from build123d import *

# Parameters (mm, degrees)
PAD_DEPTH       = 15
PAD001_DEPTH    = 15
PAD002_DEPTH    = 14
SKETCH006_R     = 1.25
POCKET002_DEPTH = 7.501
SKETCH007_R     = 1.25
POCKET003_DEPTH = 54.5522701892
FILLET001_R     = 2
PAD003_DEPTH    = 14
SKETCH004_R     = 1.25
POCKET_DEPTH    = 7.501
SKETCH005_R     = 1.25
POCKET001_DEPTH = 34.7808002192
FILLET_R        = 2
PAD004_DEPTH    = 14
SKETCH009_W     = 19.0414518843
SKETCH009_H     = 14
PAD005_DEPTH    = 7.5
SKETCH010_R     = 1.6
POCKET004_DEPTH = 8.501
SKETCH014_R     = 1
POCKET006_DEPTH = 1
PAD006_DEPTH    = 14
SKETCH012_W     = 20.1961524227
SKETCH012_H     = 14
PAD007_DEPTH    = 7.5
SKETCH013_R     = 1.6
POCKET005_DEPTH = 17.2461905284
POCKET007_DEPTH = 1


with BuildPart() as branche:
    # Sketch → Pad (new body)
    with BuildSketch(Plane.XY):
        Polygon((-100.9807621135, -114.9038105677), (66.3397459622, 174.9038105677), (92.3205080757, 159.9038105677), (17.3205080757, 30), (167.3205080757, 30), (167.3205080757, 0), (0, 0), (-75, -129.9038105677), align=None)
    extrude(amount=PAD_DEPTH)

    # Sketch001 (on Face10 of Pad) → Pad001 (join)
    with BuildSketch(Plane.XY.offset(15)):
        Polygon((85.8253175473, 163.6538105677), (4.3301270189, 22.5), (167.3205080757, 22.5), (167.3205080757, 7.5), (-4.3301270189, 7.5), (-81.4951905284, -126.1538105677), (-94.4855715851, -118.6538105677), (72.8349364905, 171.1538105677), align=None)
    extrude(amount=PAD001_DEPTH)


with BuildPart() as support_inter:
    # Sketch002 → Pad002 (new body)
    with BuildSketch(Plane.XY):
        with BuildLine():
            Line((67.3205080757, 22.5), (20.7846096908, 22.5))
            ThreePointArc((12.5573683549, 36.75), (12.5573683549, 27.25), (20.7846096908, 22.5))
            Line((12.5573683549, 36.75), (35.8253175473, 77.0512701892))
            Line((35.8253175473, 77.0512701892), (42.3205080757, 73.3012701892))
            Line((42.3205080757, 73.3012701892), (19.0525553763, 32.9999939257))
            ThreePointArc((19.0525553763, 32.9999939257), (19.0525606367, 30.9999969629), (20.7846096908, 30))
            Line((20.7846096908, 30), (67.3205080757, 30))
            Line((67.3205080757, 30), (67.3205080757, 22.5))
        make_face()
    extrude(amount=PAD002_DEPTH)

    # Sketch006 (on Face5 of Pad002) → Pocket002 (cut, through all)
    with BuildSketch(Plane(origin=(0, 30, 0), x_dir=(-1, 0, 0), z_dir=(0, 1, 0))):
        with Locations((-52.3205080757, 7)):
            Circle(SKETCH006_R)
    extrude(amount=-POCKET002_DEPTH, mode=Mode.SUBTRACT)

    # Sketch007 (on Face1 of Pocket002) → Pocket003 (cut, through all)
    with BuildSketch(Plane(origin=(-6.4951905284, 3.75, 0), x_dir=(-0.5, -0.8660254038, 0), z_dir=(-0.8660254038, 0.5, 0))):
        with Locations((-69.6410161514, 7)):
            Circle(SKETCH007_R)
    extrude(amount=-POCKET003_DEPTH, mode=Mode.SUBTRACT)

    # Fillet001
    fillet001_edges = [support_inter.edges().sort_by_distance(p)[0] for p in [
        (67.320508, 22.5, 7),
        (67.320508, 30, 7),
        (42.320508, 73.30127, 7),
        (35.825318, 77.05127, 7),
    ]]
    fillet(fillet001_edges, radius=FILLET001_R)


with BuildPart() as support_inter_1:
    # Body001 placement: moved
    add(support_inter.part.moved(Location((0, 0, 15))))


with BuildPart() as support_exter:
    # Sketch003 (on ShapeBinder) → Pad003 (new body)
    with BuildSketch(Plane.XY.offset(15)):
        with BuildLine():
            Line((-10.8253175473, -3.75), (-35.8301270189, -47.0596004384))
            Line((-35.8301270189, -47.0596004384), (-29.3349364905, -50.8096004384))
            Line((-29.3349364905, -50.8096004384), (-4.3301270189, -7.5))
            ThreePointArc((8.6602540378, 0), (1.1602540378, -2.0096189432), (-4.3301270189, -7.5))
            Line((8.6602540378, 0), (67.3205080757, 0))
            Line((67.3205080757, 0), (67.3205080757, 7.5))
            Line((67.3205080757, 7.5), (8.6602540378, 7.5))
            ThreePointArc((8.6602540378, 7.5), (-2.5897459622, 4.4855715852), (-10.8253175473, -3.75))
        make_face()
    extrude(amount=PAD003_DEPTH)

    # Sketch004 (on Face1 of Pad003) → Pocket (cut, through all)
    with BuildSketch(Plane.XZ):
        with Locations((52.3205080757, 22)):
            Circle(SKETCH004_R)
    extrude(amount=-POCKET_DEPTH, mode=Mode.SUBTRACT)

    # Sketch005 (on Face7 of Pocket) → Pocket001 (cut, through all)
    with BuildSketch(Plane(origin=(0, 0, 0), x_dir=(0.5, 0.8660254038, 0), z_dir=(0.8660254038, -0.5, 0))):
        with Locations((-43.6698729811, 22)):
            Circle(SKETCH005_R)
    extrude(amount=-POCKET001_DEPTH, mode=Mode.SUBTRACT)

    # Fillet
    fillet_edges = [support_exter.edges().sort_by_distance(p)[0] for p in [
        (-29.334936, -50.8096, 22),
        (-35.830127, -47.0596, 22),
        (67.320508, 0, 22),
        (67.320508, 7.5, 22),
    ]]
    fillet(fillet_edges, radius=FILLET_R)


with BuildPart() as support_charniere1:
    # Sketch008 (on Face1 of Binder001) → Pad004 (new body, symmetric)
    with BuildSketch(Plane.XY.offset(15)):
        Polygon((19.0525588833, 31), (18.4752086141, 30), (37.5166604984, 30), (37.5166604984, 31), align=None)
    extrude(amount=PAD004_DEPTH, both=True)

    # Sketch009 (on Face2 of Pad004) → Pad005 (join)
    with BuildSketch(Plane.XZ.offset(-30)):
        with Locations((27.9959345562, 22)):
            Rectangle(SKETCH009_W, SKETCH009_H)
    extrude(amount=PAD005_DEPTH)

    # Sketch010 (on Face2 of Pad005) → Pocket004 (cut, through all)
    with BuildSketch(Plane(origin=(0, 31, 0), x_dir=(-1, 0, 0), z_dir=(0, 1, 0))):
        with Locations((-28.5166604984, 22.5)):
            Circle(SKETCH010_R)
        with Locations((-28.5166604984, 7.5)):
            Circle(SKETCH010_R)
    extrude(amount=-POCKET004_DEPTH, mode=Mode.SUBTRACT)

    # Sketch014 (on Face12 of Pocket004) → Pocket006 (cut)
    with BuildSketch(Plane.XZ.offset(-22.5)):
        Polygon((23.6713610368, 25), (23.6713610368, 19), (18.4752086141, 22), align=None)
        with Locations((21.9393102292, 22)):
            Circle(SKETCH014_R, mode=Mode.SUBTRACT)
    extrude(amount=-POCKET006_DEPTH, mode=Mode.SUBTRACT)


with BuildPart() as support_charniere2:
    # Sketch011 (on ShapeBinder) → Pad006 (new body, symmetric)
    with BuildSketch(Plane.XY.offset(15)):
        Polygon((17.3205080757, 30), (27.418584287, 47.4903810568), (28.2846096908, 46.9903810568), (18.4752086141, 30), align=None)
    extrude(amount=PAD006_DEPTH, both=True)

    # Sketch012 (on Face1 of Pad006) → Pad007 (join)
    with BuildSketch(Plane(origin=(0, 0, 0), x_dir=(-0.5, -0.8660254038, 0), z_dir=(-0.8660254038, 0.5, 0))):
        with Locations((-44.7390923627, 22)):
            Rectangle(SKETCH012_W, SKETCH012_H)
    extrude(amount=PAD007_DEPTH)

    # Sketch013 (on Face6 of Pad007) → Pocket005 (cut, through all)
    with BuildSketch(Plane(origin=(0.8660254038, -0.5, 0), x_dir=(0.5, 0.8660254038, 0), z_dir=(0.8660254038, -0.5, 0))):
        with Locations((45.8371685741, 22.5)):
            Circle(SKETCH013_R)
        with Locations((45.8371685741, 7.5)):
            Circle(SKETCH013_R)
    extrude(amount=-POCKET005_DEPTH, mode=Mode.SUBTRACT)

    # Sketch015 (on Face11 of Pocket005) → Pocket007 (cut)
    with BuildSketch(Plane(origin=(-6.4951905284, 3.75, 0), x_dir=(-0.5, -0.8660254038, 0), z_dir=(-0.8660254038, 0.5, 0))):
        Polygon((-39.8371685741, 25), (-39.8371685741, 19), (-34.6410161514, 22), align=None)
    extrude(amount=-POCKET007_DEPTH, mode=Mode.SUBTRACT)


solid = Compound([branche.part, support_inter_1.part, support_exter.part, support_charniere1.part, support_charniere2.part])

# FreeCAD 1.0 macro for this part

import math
import FreeCAD as App
import Part
import Sketcher
from FreeCAD import Vector
Q = App.Units.Quantity


def edges_at(feature, points):
    """Names of the edges that pass closest to the given points."""
    edges = feature.Shape.Edges
    near = lambda p: min(range(len(edges)), key=lambda i: edges[i].distToShape(Part.Vertex(*p))[0])
    return sorted({f"Edge{near(p) + 1}" for p in points})


def add_polygon(sketch, points):
    """Adds a closed chain of lines whose ends are joined by coincident constraints."""
    first, n = sketch.GeometryCount, len(points)
    for a, b in zip(points, points[1:] + points[:1]):
        sketch.addGeometry(Part.LineSegment(App.Vector(*a, 0), App.Vector(*b, 0)), False)
    for i in range(n):
        sketch.addConstraint(Sketcher.Constraint("Coincident", first + i, 2, first + (i + 1) % n, 1))

doc = App.newDocument("Part")
body = doc.addObject("PartDesign::Body", "Body")

# Sketch on XY plane
sketch1 = doc.addObject("Sketcher::SketchObject", "Sketch")
body.addObject(sketch1)
sketch1.AttachmentSupport = (doc.XY_Plane, [""])
sketch1.MapMode = "FlatFace"
add_polygon(sketch1, [(66.339746, 174.903811), (-100.980762, -114.903811), (-75, -129.903811), (0, 0), (167.320508, 0), (167.320508, 30), (17.320508, 30), (92.320508, 159.903811)])  # lines 0-7
sketch1.addConstraint([
    Sketcher.Constraint("Horizontal", 3),
    Sketcher.Constraint("Vertical", 4),
    Sketcher.Constraint("Horizontal", 5),
    Sketcher.Constraint("Coincident", 2, 2, -1, 1),
    Sketcher.Constraint("Perpendicular", 0, 1),
    Sketcher.Constraint("Perpendicular", 1, 2),
    Sketcher.Constraint("Parallel", 2, 6),
    Sketcher.Constraint("Perpendicular", 6, 7),
    Sketcher.Constraint("Equal", 2, 6),
    Sketcher.Constraint("Equal", 1, 7),
    Sketcher.Constraint("DistanceX", 5, 2, 5, 1, Q("150 mm")),
    Sketcher.Constraint("DistanceY", 4, 1, 4, 2, Q("30 mm")),
    Sketcher.Constraint("Angle", 0, Q("-120 deg")),
    Sketcher.Constraint("Distance", 1, Q("30 mm")),
    Sketcher.Constraint("Distance", 2, Q("150 mm")),
])
pad1 = doc.addObject("PartDesign::Pad", "Pad")
body.addObject(pad1)
pad1.Profile = sketch1
pad1.Length = 15

# Sketch on XY plane
sketch2 = doc.addObject("Sketcher::SketchObject", "Sketch001")
body.addObject(sketch2)
sketch2.AttachmentSupport = (doc.XY_Plane, [""])
sketch2.MapMode = "FlatFace"
sketch2.AttachmentOffset = App.Placement(Vector(0, 0, 15), App.Rotation())
add_polygon(sketch2, [(4.330127, 22.5), (85.825318, 163.653811), (72.834936, 171.153811), (-94.485572, -118.653811), (-81.495191, -126.153811), (-4.330127, 7.5), (167.320508, 7.5), (167.320508, 22.5)])  # lines 0-7
sketch2.addConstraint([
    Sketcher.Constraint("Horizontal", 5),
    Sketcher.Constraint("Vertical", 6),
    Sketcher.Constraint("Horizontal", 7),
    Sketcher.Constraint("Perpendicular", 0, 1),
    Sketcher.Constraint("Perpendicular", 1, 2),
    Sketcher.Constraint("Perpendicular", 2, 3),
    Sketcher.Constraint("Perpendicular", 3, 4),
    Sketcher.Constraint("Equal", 1, 3),
    Sketcher.Constraint("DistanceY", 6, 1, 6, 2, Q("15 mm")),
    Sketcher.Constraint("Angle", 0, Q("60 deg")),
    Sketcher.Constraint("Distance", 1, Q("15 mm")),
    Sketcher.Constraint("DistanceY", -1, 1, 4, 2, Q("7.5 mm")),
    Sketcher.Constraint("DistanceX", 7, 2, 7, 1, Q("162.990381 mm")),
    Sketcher.Constraint("DistanceX", 3, 2, 5, 2, Q("248.815699 mm")),
    Sketcher.Constraint("Distance", 0, Q("162.990381 mm")),
    Sketcher.Constraint("DistanceX", 2, 2, -1, 1, Q("94.485572 mm")),
])
pad2 = doc.addObject("PartDesign::Pad", "Pad001")
body.addObject(pad2)
pad2.Profile = sketch2
pad2.Length = 15
body2 = doc.addObject("PartDesign::Body", "Body001")

# Sketch on XY plane
sketch3 = doc.addObject("Sketcher::SketchObject", "Sketch002")
body2.addObject(sketch3)
sketch3.AttachmentSupport = (doc.getObject("XY_Plane001"), [""])
sketch3.MapMode = "FlatFace"
sketch3.addGeometry([
    Part.LineSegment(Vector(20.78461, 22.5, 0), Vector(67.320508, 22.5, 0)),  # 0
    Part.LineSegment(Vector(67.320508, 22.5, 0), Vector(67.320508, 30, 0)),  # 1
    Part.LineSegment(Vector(67.320508, 30, 0), Vector(20.78461, 30, 0)),  # 2
    Part.ArcOfCircle(Part.Circle(Vector(20.78461, 32, 0), Vector(0, 0, 1), 2), math.radians(150.000201), math.radians(270)),  # 3
    Part.LineSegment(Vector(19.052555, 32.999994, 0), Vector(42.320508, 73.30127, 0)),  # 4
    Part.LineSegment(Vector(42.320508, 73.30127, 0), Vector(35.825318, 77.05127, 0)),  # 5
    Part.LineSegment(Vector(35.825318, 77.05127, 0), Vector(12.557368, 36.75, 0)),  # 6
    Part.ArcOfCircle(Part.Circle(Vector(20.78461, 32, 0), Vector(0, 0, 1), 9.5), math.radians(150), math.radians(270)),  # 7
], False)
sketch3.addConstraint([
    Sketcher.Constraint("Coincident", 0, 2, 1, 1),
    Sketcher.Constraint("Coincident", 1, 2, 2, 1),
    Sketcher.Constraint("Tangent", 2, 2, 3, 2),
    Sketcher.Constraint("Coincident", 3, 1, 4, 1),
    Sketcher.Constraint("Coincident", 4, 2, 5, 1),
    Sketcher.Constraint("Coincident", 5, 2, 6, 1),
    Sketcher.Constraint("Tangent", 6, 2, 7, 1),
    Sketcher.Constraint("Tangent", 7, 2, 0, 1),
    Sketcher.Constraint("Horizontal", 0),
    Sketcher.Constraint("Vertical", 1),
    Sketcher.Constraint("Horizontal", 2),
    Sketcher.Constraint("Coincident", 7, 3, 3, 3),
    Sketcher.Constraint("Perpendicular", 4, 5),
    Sketcher.Constraint("Perpendicular", 5, 6),
    Sketcher.Constraint("Radius", 3, Q("2 mm")),
    Sketcher.Constraint("Radius", 7, Q("9.5 mm")),
    Sketcher.Constraint("Angle", 4, Q("60 deg")),
    Sketcher.Constraint("DistanceY", -1, 1, 3, 3, Q("32 mm")),
    Sketcher.Constraint("DistanceX", 4, 2, 1, 2, Q("25 mm")),
    Sketcher.Constraint("DistanceX", 0, 1, 0, 2, Q("46.535898 mm")),
    Sketcher.Constraint("DistanceX", -1, 1, 3, 3, Q("20.78461 mm")),
    Sketcher.Constraint("Distance", 4, Q("46.535905 mm")),
])
pad3 = doc.addObject("PartDesign::Pad", "Pad002")
body2.addObject(pad3)
pad3.Profile = sketch3
pad3.Length = 14

# Sketch on XZ plane
sketch4 = doc.addObject("Sketcher::SketchObject", "Sketch003")
body2.addObject(sketch4)
sketch4.AttachmentSupport = (doc.getObject("XZ_Plane001"), [""])
sketch4.MapMode = "FlatFace"
sketch4.AttachmentOffset = App.Placement(Vector(0, 0, -30), App.Rotation())
sketch4.addGeometry(Part.Circle(Vector(52.320508, 7, 0), Vector(0, 0, 1), 1.25), False)
sketch4.addConstraint([
    Sketcher.Constraint("Diameter", 0, Q("2.5 mm")),
    Sketcher.Constraint("DistanceY", -1, 1, 0, 3, Q("7 mm")),
    Sketcher.Constraint("DistanceX", -1, 1, 0, 3, Q("52.320508 mm")),
])
pocket1 = doc.addObject("PartDesign::Pocket", "Pocket")
body2.addObject(pocket1)
pocket1.Profile = sketch4
pocket1.Type = "ThroughAll"
pocket1.Reversed = True

# Sketch on an angled plane
sketch5 = doc.addObject("Sketcher::SketchObject", "Sketch004")
body2.addObject(sketch5)
sketch5.Placement = App.Placement(Vector(-6.495191, 3.75, 0), App.Rotation(Vector(-0.5, -0.866025404, 0), Vector(0, 0, 1), Vector(-0.866025404, 0.5, 0), "ZXY"))
sketch5.addGeometry(Part.Circle(Vector(-69.641016, 7, 0), Vector(0, 0, 1), 1.25), False)
sketch5.addConstraint([
    Sketcher.Constraint("Diameter", 0, Q("2.5 mm")),
    Sketcher.Constraint("DistanceY", -1, 1, 0, 3, Q("7 mm")),
    Sketcher.Constraint("DistanceX", 0, 3, -1, 1, Q("69.641016 mm")),
])
pocket2 = doc.addObject("PartDesign::Pocket", "Pocket001")
body2.addObject(pocket2)
pocket2.Profile = sketch5
pocket2.Type = "ThroughAll"
doc.recompute()

fillet = doc.addObject("PartDesign::Fillet", "Fillet")
body2.addObject(fillet)
fillet.Base = (pocket2, edges_at(pocket2, [
    (67.321, 22.5, 7),
    (67.321, 30, 7),
    (42.321, 73.301, 7),
    (35.825, 77.051, 7),
]))
fillet.Radius = 2
body3 = doc.addObject("PartDesign::Body", "Body002")
doc.recompute()

body2.Placement = App.Placement(Vector(0, 0, 15), App.Rotation(Vector(0, 0, 1), 0))
boolean = doc.addObject("PartDesign::Boolean", "Boolean")
body3.addObject(boolean)
boolean.Type = "Fuse"
boolean.addObjects([body2])
body4 = doc.addObject("PartDesign::Body", "Body003")

# Sketch on XY plane
sketch6 = doc.addObject("Sketcher::SketchObject", "Sketch005")
body4.addObject(sketch6)
sketch6.AttachmentSupport = (doc.getObject("XY_Plane003"), [""])
sketch6.MapMode = "FlatFace"
sketch6.AttachmentOffset = App.Placement(Vector(0, 0, 15), App.Rotation())
sketch6.addGeometry([
    Part.LineSegment(Vector(-10.825318, -3.75, 0), Vector(-35.830127, -47.0596, 0)),  # 0
    Part.LineSegment(Vector(-35.830127, -47.0596, 0), Vector(-29.334936, -50.8096, 0)),  # 1
    Part.LineSegment(Vector(-29.334936, -50.8096, 0), Vector(-4.330127, -7.5, 0)),  # 2
    Part.ArcOfCircle(Part.Circle(Vector(8.660254, -15, 0), Vector(0, 0, 1), 15), math.radians(90), math.radians(150)),  # 3
    Part.LineSegment(Vector(8.660254, 0, 0), Vector(67.320508, 0, 0)),  # 4
    Part.LineSegment(Vector(67.320508, 0, 0), Vector(67.320508, 7.5, 0)),  # 5
    Part.LineSegment(Vector(67.320508, 7.5, 0), Vector(8.660254, 7.5, 0)),  # 6
    Part.ArcOfCircle(Part.Circle(Vector(8.660254, -15, 0), Vector(0, 0, 1), 22.5), math.radians(90), math.radians(150)),  # 7
], False)
sketch6.addConstraint([
    Sketcher.Constraint("Coincident", 0, 2, 1, 1),
    Sketcher.Constraint("Coincident", 1, 2, 2, 1),
    Sketcher.Constraint("Tangent", 2, 2, 3, 2),
    Sketcher.Constraint("Tangent", 3, 1, 4, 1),
    Sketcher.Constraint("Coincident", 4, 2, 5, 1),
    Sketcher.Constraint("Coincident", 5, 2, 6, 1),
    Sketcher.Constraint("Tangent", 6, 2, 7, 1),
    Sketcher.Constraint("Tangent", 7, 2, 0, 1),
    Sketcher.Constraint("Horizontal", 4),
    Sketcher.Constraint("Vertical", 5),
    Sketcher.Constraint("Horizontal", 6),
    Sketcher.Constraint("Coincident", 7, 3, 3, 3),
    Sketcher.Constraint("PointOnObject", 3, 1, -1),
    Sketcher.Constraint("Perpendicular", 0, 1),
    Sketcher.Constraint("Perpendicular", 1, 2),
    Sketcher.Constraint("Radius", 3, Q("15 mm")),
    Sketcher.Constraint("Radius", 7, Q("22.5 mm")),
    Sketcher.Constraint("Angle", 0, Q("-120 deg")),
    Sketcher.Constraint("DistanceX", 0, 2, 2, 2, Q("31.5 mm")),
    Sketcher.Constraint("DistanceX", 4, 1, 4, 2, Q("58.660254 mm")),
    Sketcher.Constraint("DistanceX", -1, 1, 4, 2, Q("67.320508 mm")),
])
pad4 = doc.addObject("PartDesign::Pad", "Pad003")
body4.addObject(pad4)
pad4.Profile = sketch6
pad4.Length = 14

# Sketch on XZ plane
sketch7 = doc.addObject("Sketcher::SketchObject", "Sketch006")
body4.addObject(sketch7)
sketch7.AttachmentSupport = (doc.getObject("XZ_Plane003"), [""])
sketch7.MapMode = "FlatFace"
sketch7.addGeometry(Part.Circle(Vector(52.320508, 22, 0), Vector(0, 0, 1), 1.25), False)
sketch7.addConstraint([
    Sketcher.Constraint("Diameter", 0, Q("2.5 mm")),
    Sketcher.Constraint("DistanceY", -1, 1, 0, 3, Q("22 mm")),
    Sketcher.Constraint("DistanceX", -1, 1, 0, 3, Q("52.320508 mm")),
])
pocket3 = doc.addObject("PartDesign::Pocket", "Pocket002")
body4.addObject(pocket3)
pocket3.Profile = sketch7
pocket3.Type = "ThroughAll"

# Sketch on an angled plane
sketch8 = doc.addObject("Sketcher::SketchObject", "Sketch007")
body4.addObject(sketch8)
sketch8.Placement = App.Placement(Vector(0, 0, 0), App.Rotation(Vector(0.5, 0.866025404, 0), Vector(0, 0, 1), Vector(0.866025404, -0.5, 0), "ZXY"))
sketch8.addGeometry(Part.Circle(Vector(-43.669873, 22, 0), Vector(0, 0, 1), 1.25), False)
sketch8.addConstraint([
    Sketcher.Constraint("Diameter", 0, Q("2.5 mm")),
    Sketcher.Constraint("DistanceY", -1, 1, 0, 3, Q("22 mm")),
    Sketcher.Constraint("DistanceX", 0, 3, -1, 1, Q("43.669873 mm")),
])
pocket4 = doc.addObject("PartDesign::Pocket", "Pocket003")
body4.addObject(pocket4)
pocket4.Profile = sketch8
pocket4.Type = "ThroughAll"
doc.recompute()

fillet2 = doc.addObject("PartDesign::Fillet", "Fillet001")
body4.addObject(fillet2)
fillet2.Base = (pocket4, edges_at(pocket4, [
    (-29.335, -50.81, 22),
    (-35.83, -47.06, 22),
    (67.321, 0, 22),
    (67.321, 7.5, 22),
]))
fillet2.Radius = 2
body5 = doc.addObject("PartDesign::Body", "Body004")

# Sketch on XY plane
sketch9 = doc.addObject("Sketcher::SketchObject", "Sketch008")
body5.addObject(sketch9)
sketch9.AttachmentSupport = (doc.getObject("XY_Plane004"), [""])
sketch9.MapMode = "FlatFace"
sketch9.AttachmentOffset = App.Placement(Vector(0, 0, 15), App.Rotation())
add_polygon(sketch9, [(19.052559, 31), (18.475209, 30), (37.51666, 30), (37.51666, 31)])  # lines 0-3
sketch9.addConstraint([
    Sketcher.Constraint("Horizontal", 1),
    Sketcher.Constraint("Vertical", 2),
    Sketcher.Constraint("Horizontal", 3),
    Sketcher.Constraint("DistanceY", 2, 1, 2, 2, Q("1 mm")),
    Sketcher.Constraint("Angle", 0, Q("-120 deg")),
    Sketcher.Constraint("DistanceY", -1, 1, 0, 2, Q("30 mm")),
    Sketcher.Constraint("DistanceX", 3, 2, 3, 1, Q("18.464102 mm")),
    Sketcher.Constraint("DistanceX", -1, 1, 0, 2, Q("18.475209 mm")),
])
pad5 = doc.addObject("PartDesign::Pad", "Pad004")
body5.addObject(pad5)
pad5.Profile = sketch9
pad5.Length = 28
pad5.Midplane = True

# Sketch on XZ plane
sketch10 = doc.addObject("Sketcher::SketchObject", "Sketch009")
body5.addObject(sketch10)
sketch10.AttachmentSupport = (doc.getObject("XZ_Plane004"), [""])
sketch10.MapMode = "FlatFace"
sketch10.AttachmentOffset = App.Placement(Vector(0, 0, -30), App.Rotation())
add_polygon(sketch10, [(18.475209, 29), (18.475209, 15), (37.51666, 15), (37.51666, 29)])  # lines 0-3
sketch10.addConstraint([
    Sketcher.Constraint("Vertical", 0),
    Sketcher.Constraint("Horizontal", 1),
    Sketcher.Constraint("Vertical", 2),
    Sketcher.Constraint("Horizontal", 3),
    Sketcher.Constraint("DistanceY", 0, 2, 0, 1, Q("14 mm")),
    Sketcher.Constraint("DistanceY", -1, 1, 0, 2, Q("15 mm")),
    Sketcher.Constraint("DistanceX", 1, 1, 1, 2, Q("19.041452 mm")),
    Sketcher.Constraint("DistanceX", -1, 1, 0, 2, Q("18.475209 mm")),
])
pad6 = doc.addObject("PartDesign::Pad", "Pad005")
body5.addObject(pad6)
pad6.Profile = sketch10
pad6.Length = 7.5

# Sketch on XZ plane
sketch11 = doc.addObject("Sketcher::SketchObject", "Sketch010")
body5.addObject(sketch11)
sketch11.AttachmentSupport = (doc.getObject("XZ_Plane004"), [""])
sketch11.MapMode = "FlatFace"
sketch11.AttachmentOffset = App.Placement(Vector(0, 0, -31), App.Rotation())
sketch11.addGeometry([
    Part.Circle(Vector(28.51666, 22.5, 0), Vector(0, 0, 1), 1.6),
    Part.Circle(Vector(28.51666, 7.5, 0), Vector(0, 0, 1), 1.6),
], False)
sketch11.addConstraint([
    Sketcher.Constraint("Equal", 0, 1),
    Sketcher.Constraint("Vertical", 0, 3, 1, 3),
    Sketcher.Constraint("Diameter", 0, Q("3.2 mm")),
    Sketcher.Constraint("DistanceY", 1, 3, 0, 3, Q("15 mm")),
    Sketcher.Constraint("DistanceY", -1, 1, 0, 3, Q("22.5 mm")),
    Sketcher.Constraint("DistanceX", -1, 1, 0, 3, Q("28.51666 mm")),
])
pocket5 = doc.addObject("PartDesign::Pocket", "Pocket004")
body5.addObject(pocket5)
pocket5.Profile = sketch11
pocket5.Type = "ThroughAll"
pocket5.Reversed = True

# Sketch on XZ plane
sketch12 = doc.addObject("Sketcher::SketchObject", "Sketch011")
body5.addObject(sketch12)
sketch12.AttachmentSupport = (doc.getObject("XZ_Plane004"), [""])
sketch12.MapMode = "FlatFace"
sketch12.AttachmentOffset = App.Placement(Vector(0, 0, -22.5), App.Rotation())
add_polygon(sketch12, [(23.671361, 19), (23.671361, 25), (18.475209, 22)])  # lines 0-2
sketch12.addGeometry(Part.Circle(Vector(21.93931, 22, 0), Vector(0, 0, 1), 1), False)  # 3
sketch12.addConstraint([
    Sketcher.Constraint("Vertical", 0),
    Sketcher.Constraint("Horizontal", 3, 3, 1, 2),
    Sketcher.Constraint("Equal", 1, 2),
    Sketcher.Constraint("Diameter", 3, Q("2 mm")),
    Sketcher.Constraint("DistanceY", 0, 1, 0, 2, Q("6 mm")),
    Sketcher.Constraint("Angle", 1, Q("-150 deg")),
    Sketcher.Constraint("DistanceY", -1, 1, 3, 3, Q("22 mm")),
    Sketcher.Constraint("DistanceX", 1, 2, 3, 3, Q("3.464102 mm")),
    Sketcher.Constraint("DistanceX", -1, 1, 3, 3, Q("21.93931 mm")),
])
pocket6 = doc.addObject("PartDesign::Pocket", "Pocket005")
body5.addObject(pocket6)
pocket6.Profile = sketch12
pocket6.Length = 1
body6 = doc.addObject("PartDesign::Body", "Body005")

# Sketch on XY plane
sketch13 = doc.addObject("Sketcher::SketchObject", "Sketch012")
body6.addObject(sketch13)
sketch13.AttachmentSupport = (doc.getObject("XY_Plane005"), [""])
sketch13.MapMode = "FlatFace"
sketch13.AttachmentOffset = App.Placement(Vector(0, 0, 15), App.Rotation())
add_polygon(sketch13, [(27.418584, 47.490381), (17.320508, 30), (18.475209, 30), (28.28461, 46.990381)])  # lines 0-3
sketch13.addConstraint([
    Sketcher.Constraint("Horizontal", 1),
    Sketcher.Constraint("Parallel", 0, 2),
    Sketcher.Constraint("Perpendicular", 2, 3),
    Sketcher.Constraint("Angle", 0, Q("-120 deg")),
    Sketcher.Constraint("Distance", 3, Q("1 mm")),
    Sketcher.Constraint("DistanceY", -1, 1, 0, 2, Q("30 mm")),
    Sketcher.Constraint("DistanceX", 1, 2, 2, 2, Q("9.809401 mm")),
    Sketcher.Constraint("DistanceX", -1, 1, 0, 2, Q("17.320508 mm")),
])
pad7 = doc.addObject("PartDesign::Pad", "Pad006")
body6.addObject(pad7)
pad7.Profile = sketch13
pad7.Length = 28
pad7.Midplane = True

# Sketch on an angled plane
sketch14 = doc.addObject("Sketcher::SketchObject", "Sketch013")
body6.addObject(sketch14)
sketch14.Placement = App.Placement(Vector(0, 0, 0), App.Rotation(Vector(-0.5, -0.866025404, 0), Vector(0, 0, 1), Vector(-0.866025404, 0.5, 0), "ZXY"))
add_polygon(sketch14, [(-54.837169, 29), (-54.837169, 15), (-34.641016, 15), (-34.641016, 29)])  # lines 0-3
sketch14.addConstraint([
    Sketcher.Constraint("Vertical", 0),
    Sketcher.Constraint("Horizontal", 1),
    Sketcher.Constraint("Vertical", 2),
    Sketcher.Constraint("Horizontal", 3),
    Sketcher.Constraint("DistanceY", 0, 2, 0, 1, Q("14 mm")),
    Sketcher.Constraint("DistanceY", -1, 1, 0, 2, Q("15 mm")),
    Sketcher.Constraint("DistanceX", 1, 1, 1, 2, Q("20.196152 mm")),
    Sketcher.Constraint("DistanceX", 0, 2, -1, 1, Q("54.837169 mm")),
])
pad8 = doc.addObject("PartDesign::Pad", "Pad007")
body6.addObject(pad8)
pad8.Profile = sketch14
pad8.Length = 7.5

# Sketch on an angled plane
sketch15 = doc.addObject("Sketcher::SketchObject", "Sketch014")
body6.addObject(sketch15)
sketch15.Placement = App.Placement(Vector(0.866025, -0.5, 0), App.Rotation(Vector(0.5, 0.866025404, 0), Vector(0, 0, 1), Vector(0.866025404, -0.5, 0), "ZXY"))
sketch15.addGeometry([
    Part.Circle(Vector(45.837169, 22.5, 0), Vector(0, 0, 1), 1.6),
    Part.Circle(Vector(45.837169, 7.5, 0), Vector(0, 0, 1), 1.6),
], False)
sketch15.addConstraint([
    Sketcher.Constraint("Equal", 0, 1),
    Sketcher.Constraint("Vertical", 0, 3, 1, 3),
    Sketcher.Constraint("Diameter", 0, Q("3.2 mm")),
    Sketcher.Constraint("DistanceY", 1, 3, 0, 3, Q("15 mm")),
    Sketcher.Constraint("DistanceY", -1, 1, 0, 3, Q("22.5 mm")),
    Sketcher.Constraint("DistanceX", -1, 1, 0, 3, Q("45.837169 mm")),
])
pocket7 = doc.addObject("PartDesign::Pocket", "Pocket006")
body6.addObject(pocket7)
pocket7.Profile = sketch15
pocket7.Type = "ThroughAll"

# Sketch on an angled plane
sketch16 = doc.addObject("Sketcher::SketchObject", "Sketch015")
body6.addObject(sketch16)
sketch16.Placement = App.Placement(Vector(-6.495191, 3.75, 0), App.Rotation(Vector(-0.5, -0.866025404, 0), Vector(0, 0, 1), Vector(-0.866025404, 0.5, 0), "ZXY"))
add_polygon(sketch16, [(-39.837169, 25), (-39.837169, 19), (-34.641016, 22)])  # lines 0-2
sketch16.addConstraint([
    Sketcher.Constraint("Vertical", 0),
    Sketcher.Constraint("Equal", 1, 2),
    Sketcher.Constraint("DistanceY", 0, 2, 0, 1, Q("6 mm")),
    Sketcher.Constraint("Angle", 1, Q("30 deg")),
    Sketcher.Constraint("DistanceY", -1, 1, 0, 2, Q("19 mm")),
    Sketcher.Constraint("DistanceX", 0, 2, -1, 1, Q("39.837169 mm")),
])
pocket8 = doc.addObject("PartDesign::Pocket", "Pocket007")
body6.addObject(pocket8)
pocket8.Profile = sketch16
pocket8.Length = 1

doc.recompute()
